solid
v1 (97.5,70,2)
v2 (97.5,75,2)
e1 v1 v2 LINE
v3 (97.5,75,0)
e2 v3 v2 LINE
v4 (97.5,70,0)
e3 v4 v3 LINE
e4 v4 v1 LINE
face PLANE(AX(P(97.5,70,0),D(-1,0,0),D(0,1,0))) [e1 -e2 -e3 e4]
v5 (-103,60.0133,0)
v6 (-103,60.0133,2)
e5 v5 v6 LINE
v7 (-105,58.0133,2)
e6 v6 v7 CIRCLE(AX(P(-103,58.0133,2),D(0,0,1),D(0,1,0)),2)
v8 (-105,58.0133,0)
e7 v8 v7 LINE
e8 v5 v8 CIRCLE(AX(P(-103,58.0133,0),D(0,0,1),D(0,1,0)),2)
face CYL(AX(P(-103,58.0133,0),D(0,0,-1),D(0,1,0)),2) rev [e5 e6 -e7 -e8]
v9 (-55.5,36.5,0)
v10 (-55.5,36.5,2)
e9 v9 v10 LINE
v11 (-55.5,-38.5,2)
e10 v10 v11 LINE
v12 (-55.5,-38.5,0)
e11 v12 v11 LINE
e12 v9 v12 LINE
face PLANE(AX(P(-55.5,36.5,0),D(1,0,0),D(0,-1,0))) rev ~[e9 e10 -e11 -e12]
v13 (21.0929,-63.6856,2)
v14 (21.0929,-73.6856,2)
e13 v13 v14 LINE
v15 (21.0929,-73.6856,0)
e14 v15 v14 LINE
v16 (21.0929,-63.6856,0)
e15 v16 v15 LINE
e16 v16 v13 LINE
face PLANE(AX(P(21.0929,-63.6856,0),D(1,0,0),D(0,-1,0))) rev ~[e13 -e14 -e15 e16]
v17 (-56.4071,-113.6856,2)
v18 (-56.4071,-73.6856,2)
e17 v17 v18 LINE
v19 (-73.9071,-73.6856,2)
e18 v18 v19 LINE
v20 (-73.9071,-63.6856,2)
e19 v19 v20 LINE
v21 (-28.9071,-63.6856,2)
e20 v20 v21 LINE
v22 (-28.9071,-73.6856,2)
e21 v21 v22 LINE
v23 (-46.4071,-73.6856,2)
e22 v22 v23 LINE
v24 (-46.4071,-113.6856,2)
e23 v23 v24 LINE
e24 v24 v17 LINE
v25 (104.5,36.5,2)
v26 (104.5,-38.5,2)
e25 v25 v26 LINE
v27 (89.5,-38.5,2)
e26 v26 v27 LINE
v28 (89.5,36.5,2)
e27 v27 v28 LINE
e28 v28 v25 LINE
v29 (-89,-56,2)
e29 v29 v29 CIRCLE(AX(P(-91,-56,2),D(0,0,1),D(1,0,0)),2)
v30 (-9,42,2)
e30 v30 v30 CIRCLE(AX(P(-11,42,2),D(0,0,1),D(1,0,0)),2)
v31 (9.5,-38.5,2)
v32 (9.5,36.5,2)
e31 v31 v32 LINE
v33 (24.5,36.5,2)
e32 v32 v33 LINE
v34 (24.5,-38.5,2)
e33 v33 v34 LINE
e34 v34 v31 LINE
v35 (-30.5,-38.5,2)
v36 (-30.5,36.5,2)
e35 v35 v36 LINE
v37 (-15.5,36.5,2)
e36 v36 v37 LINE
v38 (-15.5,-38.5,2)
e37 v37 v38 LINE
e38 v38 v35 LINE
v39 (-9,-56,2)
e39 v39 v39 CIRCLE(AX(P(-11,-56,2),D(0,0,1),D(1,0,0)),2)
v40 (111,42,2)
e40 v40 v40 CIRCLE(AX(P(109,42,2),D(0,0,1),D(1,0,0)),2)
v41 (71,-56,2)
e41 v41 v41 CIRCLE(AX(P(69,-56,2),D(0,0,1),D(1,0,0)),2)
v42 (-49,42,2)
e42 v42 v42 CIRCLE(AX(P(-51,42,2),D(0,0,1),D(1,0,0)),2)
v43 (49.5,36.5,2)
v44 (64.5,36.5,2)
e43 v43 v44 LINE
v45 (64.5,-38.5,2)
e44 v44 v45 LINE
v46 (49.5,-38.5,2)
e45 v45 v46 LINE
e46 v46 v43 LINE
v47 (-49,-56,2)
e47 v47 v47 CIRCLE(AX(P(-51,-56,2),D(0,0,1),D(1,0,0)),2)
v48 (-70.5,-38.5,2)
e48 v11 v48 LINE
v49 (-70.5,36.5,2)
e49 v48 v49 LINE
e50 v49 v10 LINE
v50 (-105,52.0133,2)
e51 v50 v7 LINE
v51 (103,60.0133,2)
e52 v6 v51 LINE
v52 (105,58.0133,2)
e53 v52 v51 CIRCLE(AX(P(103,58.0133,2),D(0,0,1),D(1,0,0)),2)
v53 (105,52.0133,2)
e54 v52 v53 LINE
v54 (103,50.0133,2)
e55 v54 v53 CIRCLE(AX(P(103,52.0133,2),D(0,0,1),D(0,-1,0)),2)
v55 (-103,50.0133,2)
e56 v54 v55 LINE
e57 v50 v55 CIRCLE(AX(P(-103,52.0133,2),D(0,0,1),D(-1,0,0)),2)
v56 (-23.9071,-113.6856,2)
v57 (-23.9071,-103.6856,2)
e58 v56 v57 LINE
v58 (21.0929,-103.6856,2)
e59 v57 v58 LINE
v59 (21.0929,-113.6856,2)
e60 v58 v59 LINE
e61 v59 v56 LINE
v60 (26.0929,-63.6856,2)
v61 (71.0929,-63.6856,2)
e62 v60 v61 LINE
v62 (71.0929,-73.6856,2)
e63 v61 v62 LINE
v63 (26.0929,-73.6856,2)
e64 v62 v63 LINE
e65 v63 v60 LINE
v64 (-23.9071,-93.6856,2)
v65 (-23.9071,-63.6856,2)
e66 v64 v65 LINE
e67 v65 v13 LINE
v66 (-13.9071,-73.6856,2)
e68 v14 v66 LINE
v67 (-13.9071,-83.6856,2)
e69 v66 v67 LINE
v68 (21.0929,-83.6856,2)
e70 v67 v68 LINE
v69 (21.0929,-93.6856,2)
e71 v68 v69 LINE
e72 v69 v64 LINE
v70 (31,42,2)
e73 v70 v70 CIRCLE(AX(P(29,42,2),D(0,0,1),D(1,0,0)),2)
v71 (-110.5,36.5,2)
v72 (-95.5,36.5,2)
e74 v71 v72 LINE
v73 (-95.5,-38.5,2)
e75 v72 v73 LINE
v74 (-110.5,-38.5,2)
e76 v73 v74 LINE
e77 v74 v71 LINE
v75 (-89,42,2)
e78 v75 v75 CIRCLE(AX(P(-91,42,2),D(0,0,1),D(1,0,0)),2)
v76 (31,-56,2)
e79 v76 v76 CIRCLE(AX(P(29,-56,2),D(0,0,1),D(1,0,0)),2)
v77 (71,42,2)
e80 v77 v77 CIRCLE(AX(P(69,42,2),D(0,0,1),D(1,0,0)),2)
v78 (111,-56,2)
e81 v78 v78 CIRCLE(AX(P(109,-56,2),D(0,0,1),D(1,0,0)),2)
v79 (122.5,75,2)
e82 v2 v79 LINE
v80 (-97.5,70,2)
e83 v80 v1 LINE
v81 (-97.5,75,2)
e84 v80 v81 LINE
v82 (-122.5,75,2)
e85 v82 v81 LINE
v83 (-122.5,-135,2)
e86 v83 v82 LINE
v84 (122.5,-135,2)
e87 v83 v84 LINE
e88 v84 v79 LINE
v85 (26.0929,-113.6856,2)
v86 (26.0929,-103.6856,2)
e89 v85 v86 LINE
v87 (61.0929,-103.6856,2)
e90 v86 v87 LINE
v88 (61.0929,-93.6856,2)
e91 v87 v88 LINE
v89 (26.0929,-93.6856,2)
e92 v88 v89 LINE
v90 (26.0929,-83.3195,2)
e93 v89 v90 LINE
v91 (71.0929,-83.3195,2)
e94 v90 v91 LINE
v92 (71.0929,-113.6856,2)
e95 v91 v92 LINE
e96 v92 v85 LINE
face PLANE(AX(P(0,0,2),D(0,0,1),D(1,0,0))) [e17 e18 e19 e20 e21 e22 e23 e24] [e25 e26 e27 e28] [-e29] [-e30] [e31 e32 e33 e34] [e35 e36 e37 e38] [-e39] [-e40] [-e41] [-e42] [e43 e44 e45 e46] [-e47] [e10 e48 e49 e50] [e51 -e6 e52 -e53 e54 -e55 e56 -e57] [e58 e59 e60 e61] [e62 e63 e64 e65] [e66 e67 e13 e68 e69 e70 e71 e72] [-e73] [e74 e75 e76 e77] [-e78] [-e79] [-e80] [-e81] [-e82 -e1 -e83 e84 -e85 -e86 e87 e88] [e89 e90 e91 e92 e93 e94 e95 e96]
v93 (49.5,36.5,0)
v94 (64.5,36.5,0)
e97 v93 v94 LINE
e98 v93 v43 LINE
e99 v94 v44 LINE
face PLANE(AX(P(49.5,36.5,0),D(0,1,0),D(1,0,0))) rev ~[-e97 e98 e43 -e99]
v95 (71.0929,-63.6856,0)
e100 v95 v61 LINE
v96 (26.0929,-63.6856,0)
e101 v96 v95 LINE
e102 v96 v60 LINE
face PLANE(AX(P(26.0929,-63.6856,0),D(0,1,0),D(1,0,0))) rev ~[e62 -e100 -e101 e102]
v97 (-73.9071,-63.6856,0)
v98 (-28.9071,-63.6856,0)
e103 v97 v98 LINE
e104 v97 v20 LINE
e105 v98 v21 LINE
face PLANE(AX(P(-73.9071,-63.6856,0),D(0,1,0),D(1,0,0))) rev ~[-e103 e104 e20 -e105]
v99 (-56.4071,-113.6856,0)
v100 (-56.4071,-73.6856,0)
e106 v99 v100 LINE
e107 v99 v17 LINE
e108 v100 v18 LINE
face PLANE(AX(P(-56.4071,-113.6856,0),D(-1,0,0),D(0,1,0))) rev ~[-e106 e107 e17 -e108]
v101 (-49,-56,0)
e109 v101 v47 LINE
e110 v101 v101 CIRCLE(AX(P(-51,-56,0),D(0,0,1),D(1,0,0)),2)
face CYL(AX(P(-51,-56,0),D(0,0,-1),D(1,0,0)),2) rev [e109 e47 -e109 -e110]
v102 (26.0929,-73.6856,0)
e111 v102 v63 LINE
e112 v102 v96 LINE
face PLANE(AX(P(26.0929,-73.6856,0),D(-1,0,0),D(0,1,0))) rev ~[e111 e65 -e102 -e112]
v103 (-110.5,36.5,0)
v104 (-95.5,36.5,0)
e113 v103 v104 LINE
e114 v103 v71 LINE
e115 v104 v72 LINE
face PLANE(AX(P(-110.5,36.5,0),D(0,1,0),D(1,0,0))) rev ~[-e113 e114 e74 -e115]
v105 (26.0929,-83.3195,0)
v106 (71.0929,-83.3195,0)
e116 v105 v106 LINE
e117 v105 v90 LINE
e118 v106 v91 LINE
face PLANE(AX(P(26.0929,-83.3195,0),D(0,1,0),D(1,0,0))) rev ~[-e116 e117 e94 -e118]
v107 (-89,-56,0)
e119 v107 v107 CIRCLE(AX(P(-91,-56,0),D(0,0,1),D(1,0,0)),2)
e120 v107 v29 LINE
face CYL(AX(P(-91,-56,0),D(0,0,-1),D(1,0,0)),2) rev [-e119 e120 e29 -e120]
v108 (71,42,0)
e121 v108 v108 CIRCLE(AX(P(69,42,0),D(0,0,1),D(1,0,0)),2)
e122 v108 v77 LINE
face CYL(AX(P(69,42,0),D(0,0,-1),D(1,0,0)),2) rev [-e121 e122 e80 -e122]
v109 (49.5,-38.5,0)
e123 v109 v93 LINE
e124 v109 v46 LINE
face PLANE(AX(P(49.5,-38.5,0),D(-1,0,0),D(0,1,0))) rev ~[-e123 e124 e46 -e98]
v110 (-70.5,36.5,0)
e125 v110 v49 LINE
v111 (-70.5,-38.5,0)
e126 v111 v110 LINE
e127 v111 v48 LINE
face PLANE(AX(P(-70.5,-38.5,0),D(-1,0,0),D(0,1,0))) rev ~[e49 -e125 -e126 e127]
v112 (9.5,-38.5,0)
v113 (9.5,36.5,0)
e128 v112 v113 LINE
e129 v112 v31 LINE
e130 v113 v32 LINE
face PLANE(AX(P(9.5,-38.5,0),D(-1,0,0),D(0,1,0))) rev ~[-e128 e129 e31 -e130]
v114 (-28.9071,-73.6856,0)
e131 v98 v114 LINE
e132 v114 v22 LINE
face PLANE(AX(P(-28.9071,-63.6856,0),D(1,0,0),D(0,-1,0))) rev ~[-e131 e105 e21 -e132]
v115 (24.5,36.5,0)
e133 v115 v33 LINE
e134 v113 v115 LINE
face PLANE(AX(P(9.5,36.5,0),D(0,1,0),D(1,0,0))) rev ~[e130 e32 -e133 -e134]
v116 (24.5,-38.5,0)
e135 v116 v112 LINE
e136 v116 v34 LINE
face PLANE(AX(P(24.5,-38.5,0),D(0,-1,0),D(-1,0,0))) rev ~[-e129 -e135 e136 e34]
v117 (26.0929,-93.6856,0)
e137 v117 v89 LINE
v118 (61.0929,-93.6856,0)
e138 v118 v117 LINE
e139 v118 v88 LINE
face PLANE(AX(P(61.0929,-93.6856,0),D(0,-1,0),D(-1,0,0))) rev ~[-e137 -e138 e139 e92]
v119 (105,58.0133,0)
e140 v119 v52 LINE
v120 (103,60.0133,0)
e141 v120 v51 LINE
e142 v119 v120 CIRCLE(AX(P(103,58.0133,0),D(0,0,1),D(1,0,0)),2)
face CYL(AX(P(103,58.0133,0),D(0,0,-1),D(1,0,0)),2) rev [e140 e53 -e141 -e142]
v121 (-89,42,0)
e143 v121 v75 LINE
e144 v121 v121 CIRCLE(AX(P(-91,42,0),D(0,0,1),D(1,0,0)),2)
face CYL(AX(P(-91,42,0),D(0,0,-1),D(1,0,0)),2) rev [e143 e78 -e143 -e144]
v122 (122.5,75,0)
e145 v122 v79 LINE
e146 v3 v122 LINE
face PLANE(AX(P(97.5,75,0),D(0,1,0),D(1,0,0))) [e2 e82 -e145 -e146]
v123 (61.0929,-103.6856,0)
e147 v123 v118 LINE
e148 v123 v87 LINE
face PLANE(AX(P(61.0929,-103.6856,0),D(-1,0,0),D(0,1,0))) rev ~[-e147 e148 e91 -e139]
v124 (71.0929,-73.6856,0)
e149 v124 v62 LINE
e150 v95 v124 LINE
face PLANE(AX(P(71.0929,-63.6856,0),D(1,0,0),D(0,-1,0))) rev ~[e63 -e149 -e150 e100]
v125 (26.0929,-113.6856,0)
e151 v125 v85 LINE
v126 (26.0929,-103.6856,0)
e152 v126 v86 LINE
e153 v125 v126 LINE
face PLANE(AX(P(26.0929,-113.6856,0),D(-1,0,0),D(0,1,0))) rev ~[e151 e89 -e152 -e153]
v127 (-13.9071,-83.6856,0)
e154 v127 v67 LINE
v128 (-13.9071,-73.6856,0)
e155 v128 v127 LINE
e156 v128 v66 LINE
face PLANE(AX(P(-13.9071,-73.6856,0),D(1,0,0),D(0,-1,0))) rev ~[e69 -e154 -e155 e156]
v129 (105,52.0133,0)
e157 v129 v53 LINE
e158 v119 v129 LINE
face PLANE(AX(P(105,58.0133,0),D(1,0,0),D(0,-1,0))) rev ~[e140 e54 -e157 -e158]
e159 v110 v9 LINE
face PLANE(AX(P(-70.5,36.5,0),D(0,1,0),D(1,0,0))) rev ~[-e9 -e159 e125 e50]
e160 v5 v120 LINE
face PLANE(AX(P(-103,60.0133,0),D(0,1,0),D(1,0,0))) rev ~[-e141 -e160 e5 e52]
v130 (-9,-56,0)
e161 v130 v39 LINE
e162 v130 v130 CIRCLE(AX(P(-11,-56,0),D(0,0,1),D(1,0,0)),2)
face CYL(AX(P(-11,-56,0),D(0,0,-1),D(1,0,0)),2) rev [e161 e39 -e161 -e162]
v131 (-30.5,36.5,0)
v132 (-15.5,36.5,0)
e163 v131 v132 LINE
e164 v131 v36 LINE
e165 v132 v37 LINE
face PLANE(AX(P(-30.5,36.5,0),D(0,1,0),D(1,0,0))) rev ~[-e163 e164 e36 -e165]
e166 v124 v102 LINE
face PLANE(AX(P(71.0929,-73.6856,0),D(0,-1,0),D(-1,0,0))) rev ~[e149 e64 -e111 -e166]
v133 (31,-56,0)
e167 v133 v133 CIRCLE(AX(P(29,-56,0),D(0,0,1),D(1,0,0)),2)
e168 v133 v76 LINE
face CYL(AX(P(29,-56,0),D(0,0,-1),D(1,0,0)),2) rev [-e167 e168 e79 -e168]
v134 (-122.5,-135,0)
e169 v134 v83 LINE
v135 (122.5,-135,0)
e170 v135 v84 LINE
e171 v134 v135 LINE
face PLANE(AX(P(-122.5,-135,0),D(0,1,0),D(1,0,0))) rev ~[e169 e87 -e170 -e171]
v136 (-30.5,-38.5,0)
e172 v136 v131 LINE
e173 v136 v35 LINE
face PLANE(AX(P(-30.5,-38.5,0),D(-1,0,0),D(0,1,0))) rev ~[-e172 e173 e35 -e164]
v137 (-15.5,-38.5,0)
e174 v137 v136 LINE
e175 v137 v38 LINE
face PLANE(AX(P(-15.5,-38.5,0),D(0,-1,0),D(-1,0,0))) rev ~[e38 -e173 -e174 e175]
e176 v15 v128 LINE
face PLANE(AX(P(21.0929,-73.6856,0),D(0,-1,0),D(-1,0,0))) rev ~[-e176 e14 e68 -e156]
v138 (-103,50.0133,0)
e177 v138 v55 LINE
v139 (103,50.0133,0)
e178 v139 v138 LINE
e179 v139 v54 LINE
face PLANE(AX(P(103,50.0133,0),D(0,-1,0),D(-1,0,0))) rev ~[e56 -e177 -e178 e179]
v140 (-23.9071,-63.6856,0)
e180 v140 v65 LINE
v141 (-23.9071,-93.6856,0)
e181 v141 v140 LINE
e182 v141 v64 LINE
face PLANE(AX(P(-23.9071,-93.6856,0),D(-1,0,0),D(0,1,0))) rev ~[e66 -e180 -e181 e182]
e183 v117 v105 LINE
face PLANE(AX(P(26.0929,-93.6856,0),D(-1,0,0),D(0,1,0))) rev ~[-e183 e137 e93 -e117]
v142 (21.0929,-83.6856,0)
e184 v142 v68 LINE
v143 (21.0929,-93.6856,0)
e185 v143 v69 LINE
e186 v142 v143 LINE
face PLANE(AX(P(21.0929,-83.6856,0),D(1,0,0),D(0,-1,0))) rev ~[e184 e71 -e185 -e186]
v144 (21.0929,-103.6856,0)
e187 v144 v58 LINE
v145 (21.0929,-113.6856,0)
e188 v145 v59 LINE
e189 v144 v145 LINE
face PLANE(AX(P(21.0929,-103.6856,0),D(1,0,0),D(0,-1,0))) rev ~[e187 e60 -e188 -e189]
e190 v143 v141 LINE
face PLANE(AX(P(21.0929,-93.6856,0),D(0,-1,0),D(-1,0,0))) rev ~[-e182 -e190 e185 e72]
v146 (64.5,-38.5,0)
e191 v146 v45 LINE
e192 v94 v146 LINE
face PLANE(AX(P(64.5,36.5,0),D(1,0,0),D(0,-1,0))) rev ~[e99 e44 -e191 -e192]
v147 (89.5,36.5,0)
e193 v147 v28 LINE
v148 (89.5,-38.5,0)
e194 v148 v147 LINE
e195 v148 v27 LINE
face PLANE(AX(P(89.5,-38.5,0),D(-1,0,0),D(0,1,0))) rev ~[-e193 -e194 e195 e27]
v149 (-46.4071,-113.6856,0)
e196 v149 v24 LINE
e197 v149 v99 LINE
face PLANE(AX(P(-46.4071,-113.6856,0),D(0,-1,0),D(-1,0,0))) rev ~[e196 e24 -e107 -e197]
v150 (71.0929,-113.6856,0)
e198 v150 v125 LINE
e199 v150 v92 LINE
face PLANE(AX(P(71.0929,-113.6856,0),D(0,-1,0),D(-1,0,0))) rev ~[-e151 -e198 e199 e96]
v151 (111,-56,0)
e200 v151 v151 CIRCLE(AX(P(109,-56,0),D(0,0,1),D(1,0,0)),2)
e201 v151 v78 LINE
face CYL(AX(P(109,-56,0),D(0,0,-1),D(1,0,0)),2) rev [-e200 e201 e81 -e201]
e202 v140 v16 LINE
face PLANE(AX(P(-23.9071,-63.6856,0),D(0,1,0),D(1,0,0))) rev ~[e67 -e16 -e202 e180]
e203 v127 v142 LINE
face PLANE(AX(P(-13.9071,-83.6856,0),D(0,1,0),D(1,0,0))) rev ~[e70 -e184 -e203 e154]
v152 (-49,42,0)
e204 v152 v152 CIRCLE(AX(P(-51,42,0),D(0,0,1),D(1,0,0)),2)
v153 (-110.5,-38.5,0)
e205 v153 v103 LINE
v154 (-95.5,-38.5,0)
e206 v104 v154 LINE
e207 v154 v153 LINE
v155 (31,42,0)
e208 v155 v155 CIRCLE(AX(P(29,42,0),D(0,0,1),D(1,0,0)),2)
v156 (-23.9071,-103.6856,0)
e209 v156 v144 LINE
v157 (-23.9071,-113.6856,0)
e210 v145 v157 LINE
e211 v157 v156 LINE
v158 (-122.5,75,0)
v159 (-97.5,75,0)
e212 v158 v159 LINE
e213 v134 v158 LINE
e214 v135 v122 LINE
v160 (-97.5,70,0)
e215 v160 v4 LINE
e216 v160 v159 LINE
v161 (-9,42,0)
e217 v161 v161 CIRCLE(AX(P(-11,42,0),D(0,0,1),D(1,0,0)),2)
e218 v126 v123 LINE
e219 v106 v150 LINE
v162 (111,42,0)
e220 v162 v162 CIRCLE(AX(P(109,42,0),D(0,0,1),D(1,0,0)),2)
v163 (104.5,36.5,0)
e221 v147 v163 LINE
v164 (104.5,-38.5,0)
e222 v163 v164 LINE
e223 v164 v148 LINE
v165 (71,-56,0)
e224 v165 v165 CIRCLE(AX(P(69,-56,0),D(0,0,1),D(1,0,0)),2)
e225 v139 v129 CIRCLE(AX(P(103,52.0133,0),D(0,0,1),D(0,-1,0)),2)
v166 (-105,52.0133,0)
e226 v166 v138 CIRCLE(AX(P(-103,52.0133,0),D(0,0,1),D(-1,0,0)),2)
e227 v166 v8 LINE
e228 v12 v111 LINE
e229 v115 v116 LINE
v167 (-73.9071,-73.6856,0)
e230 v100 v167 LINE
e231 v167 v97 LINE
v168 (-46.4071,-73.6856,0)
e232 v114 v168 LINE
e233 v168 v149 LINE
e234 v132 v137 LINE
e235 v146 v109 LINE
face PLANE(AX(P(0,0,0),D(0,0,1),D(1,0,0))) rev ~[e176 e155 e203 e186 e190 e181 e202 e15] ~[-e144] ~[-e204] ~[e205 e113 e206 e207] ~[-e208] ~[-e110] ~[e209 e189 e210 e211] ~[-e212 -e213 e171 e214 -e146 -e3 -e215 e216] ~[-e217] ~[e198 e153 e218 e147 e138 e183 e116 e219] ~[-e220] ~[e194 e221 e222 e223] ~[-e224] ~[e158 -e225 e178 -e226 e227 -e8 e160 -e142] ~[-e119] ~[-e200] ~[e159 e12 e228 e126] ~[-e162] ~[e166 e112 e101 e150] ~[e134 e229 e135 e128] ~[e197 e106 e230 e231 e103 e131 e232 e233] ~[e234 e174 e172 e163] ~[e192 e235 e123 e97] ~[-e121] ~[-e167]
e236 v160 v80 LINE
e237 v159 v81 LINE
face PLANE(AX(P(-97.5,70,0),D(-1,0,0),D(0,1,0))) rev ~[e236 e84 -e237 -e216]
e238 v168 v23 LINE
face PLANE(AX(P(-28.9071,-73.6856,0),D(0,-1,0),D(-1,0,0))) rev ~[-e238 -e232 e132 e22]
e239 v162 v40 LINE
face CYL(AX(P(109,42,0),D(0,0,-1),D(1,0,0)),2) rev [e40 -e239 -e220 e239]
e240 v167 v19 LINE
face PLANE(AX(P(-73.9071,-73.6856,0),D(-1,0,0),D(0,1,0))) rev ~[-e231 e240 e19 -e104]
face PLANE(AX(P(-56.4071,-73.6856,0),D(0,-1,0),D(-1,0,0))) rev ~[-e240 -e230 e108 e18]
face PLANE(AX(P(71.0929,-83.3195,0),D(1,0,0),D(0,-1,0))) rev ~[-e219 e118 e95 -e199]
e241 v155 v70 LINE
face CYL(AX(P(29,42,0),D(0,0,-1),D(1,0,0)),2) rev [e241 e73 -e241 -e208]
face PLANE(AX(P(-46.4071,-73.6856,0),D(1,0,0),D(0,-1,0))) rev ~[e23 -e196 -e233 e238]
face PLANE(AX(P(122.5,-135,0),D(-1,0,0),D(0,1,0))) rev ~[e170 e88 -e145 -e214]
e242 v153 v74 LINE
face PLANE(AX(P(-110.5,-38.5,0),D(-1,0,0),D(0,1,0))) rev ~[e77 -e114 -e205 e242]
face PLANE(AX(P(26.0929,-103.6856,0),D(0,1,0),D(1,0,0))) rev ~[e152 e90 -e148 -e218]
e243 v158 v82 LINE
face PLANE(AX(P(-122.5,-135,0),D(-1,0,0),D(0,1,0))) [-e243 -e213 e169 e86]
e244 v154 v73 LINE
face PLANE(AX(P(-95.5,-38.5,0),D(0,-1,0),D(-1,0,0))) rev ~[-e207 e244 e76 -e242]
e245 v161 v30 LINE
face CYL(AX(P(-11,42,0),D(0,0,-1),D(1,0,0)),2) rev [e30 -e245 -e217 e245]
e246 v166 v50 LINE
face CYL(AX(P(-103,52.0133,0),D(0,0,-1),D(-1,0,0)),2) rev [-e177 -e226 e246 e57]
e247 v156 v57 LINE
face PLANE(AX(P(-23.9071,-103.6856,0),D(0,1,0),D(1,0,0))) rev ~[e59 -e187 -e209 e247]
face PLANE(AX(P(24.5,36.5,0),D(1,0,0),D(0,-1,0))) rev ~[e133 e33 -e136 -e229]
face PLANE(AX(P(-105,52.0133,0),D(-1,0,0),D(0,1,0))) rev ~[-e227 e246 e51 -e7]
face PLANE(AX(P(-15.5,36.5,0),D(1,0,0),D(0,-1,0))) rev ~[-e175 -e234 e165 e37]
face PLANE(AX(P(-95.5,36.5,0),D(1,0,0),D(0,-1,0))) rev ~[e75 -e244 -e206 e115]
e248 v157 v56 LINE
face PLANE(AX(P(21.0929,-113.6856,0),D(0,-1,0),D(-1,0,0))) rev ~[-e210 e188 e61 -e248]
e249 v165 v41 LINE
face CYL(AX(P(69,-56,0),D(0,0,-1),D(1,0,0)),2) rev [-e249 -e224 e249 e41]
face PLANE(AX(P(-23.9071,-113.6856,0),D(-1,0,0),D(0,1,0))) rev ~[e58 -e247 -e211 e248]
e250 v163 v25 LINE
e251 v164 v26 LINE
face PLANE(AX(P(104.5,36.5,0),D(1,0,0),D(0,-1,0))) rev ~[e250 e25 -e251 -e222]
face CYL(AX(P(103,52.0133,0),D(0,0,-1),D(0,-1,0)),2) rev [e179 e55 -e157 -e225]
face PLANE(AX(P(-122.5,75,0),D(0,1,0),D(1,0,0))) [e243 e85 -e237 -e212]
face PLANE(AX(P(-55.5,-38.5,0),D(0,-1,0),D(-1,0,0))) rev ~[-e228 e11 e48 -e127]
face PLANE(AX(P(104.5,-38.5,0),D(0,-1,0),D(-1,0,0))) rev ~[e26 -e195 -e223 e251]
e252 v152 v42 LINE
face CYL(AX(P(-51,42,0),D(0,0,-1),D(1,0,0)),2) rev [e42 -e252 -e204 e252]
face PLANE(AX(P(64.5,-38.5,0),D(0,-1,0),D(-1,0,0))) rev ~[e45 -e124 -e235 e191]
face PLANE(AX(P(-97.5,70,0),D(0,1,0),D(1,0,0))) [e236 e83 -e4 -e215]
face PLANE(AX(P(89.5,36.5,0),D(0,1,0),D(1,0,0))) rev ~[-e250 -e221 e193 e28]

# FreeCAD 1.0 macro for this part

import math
import FreeCAD as App
import Part
import Sketcher

V = App.Vector
Q = App.Units.Quantity

doc = App.newDocument("Part")
body = doc.addObject("PartDesign::Body", "Body")

sketch1 = body.newObject("Sketcher::SketchObject", "Sketch")
sketch1.AttachmentSupport = (doc.getObject("XY_Plane"), [""])
sketch1.MapMode = "FlatFace"
sketch1.addGeometry(Part.LineSegment(V(-122.5, -135, 0), V(122.5, -135, 0)), False)
sketch1.addGeometry(Part.LineSegment(V(122.5, -135, 0), V(122.5, 75, 0)), False)
sketch1.addGeometry(Part.LineSegment(V(122.5, 75, 0), V(97.5, 75, 0)), False)
sketch1.addGeometry(Part.LineSegment(V(97.5, 75, 0), V(97.5, 70, 0)), False)
sketch1.addGeometry(Part.LineSegment(V(97.5, 70, 0), V(-97.5, 70, 0)), False)
sketch1.addGeometry(Part.LineSegment(V(-97.5, 70, 0), V(-97.5, 75, 0)), False)
sketch1.addGeometry(Part.LineSegment(V(-97.5, 75, 0), V(-122.5, 75, 0)), False)
sketch1.addGeometry(Part.LineSegment(V(-122.5, 75, 0), V(-122.5, -135, 0)), False)
sketch1.addGeometry(Part.LineSegment(V(-73.9, -63.7, 0), V(-28.9, -63.7, 0)), False)
sketch1.addGeometry(Part.LineSegment(V(-28.9, -63.7, 0), V(-28.9, -73.7, 0)), False)
sketch1.addGeometry(Part.LineSegment(V(-28.9, -73.7, 0), V(-46.4, -73.7, 0)), False)
sketch1.addGeometry(Part.LineSegment(V(-46.4, -73.7, 0), V(-46.4, -113.7, 0)), False)
sketch1.addGeometry(Part.LineSegment(V(-46.4, -113.7, 0), V(-56.4, -113.7, 0)), False)
sketch1.addGeometry(Part.LineSegment(V(-56.4, -113.7, 0), V(-56.4, -73.7, 0)), False)
sketch1.addGeometry(Part.LineSegment(V(-56.4, -73.7, 0), V(-73.9, -73.7, 0)), False)
sketch1.addGeometry(Part.LineSegment(V(-73.9, -73.7, 0), V(-73.9, -63.7, 0)), False)
sketch1.addGeometry(Part.LineSegment(V(21.1, -103.7, 0), V(21.1, -113.7, 0)), False)
sketch1.addGeometry(Part.LineSegment(V(21.1, -113.7, 0), V(-23.9, -113.7, 0)), False)
sketch1.addGeometry(Part.LineSegment(V(-23.9, -113.7, 0), V(-23.9, -103.7, 0)), False)
sketch1.addGeometry(Part.LineSegment(V(-23.9, -103.7, 0), V(21.1, -103.7, 0)), False)
sketch1.addGeometry(Part.Circle(V(-91, -56, 0), V(0, 0, 1), 2), False)
sketch1.addGeometry(Part.LineSegment(V(-13.9, -73.7, 0), V(-13.9, -83.7, 0)), False)
sketch1.addGeometry(Part.LineSegment(V(-13.9, -83.7, 0), V(21.1, -83.7, 0)), False)
sketch1.addGeometry(Part.LineSegment(V(21.1, -83.7, 0), V(21.1, -93.7, 0)), False)
sketch1.addGeometry(Part.LineSegment(V(21.1, -93.7, 0), V(-23.9, -93.7, 0)), False)
sketch1.addGeometry(Part.LineSegment(V(-23.9, -93.7, 0), V(-23.9, -63.7, 0)), False)
sketch1.addGeometry(Part.LineSegment(V(-23.9, -63.7, 0), V(21.1, -63.7, 0)), False)
sketch1.addGeometry(Part.LineSegment(V(21.1, -63.7, 0), V(21.1, -73.7, 0)), False)
sketch1.addGeometry(Part.LineSegment(V(21.1, -73.7, 0), V(-13.9, -73.7, 0)), False)
sketch1.addGeometry(Part.Circle(V(-51, -56, 0), V(0, 0, 1), 2), False)
sketch1.addGeometry(Part.Circle(V(-11, -56, 0), V(0, 0, 1), 2), False)
sketch1.addGeometry(Part.LineSegment(V(26.1, -113.7, 0), V(26.1, -103.7, 0)), False)
sketch1.addGeometry(Part.LineSegment(V(26.1, -103.7, 0), V(61.1, -103.7, 0)), False)
sketch1.addGeometry(Part.LineSegment(V(61.1, -103.7, 0), V(61.1, -93.7, 0)), False)
sketch1.addGeometry(Part.LineSegment(V(61.1, -93.7, 0), V(26.1, -93.7, 0)), False)
sketch1.addGeometry(Part.LineSegment(V(26.1, -93.7, 0), V(26.1, -83.3, 0)), False)
sketch1.addGeometry(Part.LineSegment(V(26.1, -83.3, 0), V(71.1, -83.3, 0)), False)
sketch1.addGeometry(Part.LineSegment(V(71.1, -83.3, 0), V(71.1, -113.7, 0)), False)
sketch1.addGeometry(Part.LineSegment(V(71.1, -113.7, 0), V(26.1, -113.7, 0)), False)
sketch1.addGeometry(Part.LineSegment(V(26.1, -73.7, 0), V(26.1, -63.7, 0)), False)
sketch1.addGeometry(Part.LineSegment(V(26.1, -63.7, 0), V(71.1, -63.7, 0)), False)
sketch1.addGeometry(Part.LineSegment(V(71.1, -63.7, 0), V(71.1, -73.7, 0)), False)
sketch1.addGeometry(Part.LineSegment(V(71.1, -73.7, 0), V(26.1, -73.7, 0)), False)
sketch1.addGeometry(Part.Circle(V(29, -56, 0), V(0, 0, 1), 2), False)
sketch1.addGeometry(Part.Circle(V(69, -56, 0), V(0, 0, 1), 2), False)
sketch1.addGeometry(Part.Circle(V(109, -56, 0), V(0, 0, 1), 2), False)
sketch1.addGeometry(Part.LineSegment(V(-110.5, -38.5, 0), V(-110.5, 36.5, 0)), False)
sketch1.addGeometry(Part.LineSegment(V(-110.5, 36.5, 0), V(-95.5, 36.5, 0)), False)
sketch1.addGeometry(Part.LineSegment(V(-95.5, 36.5, 0), V(-95.5, -38.5, 0)), False)
sketch1.addGeometry(Part.LineSegment(V(-95.5, -38.5, 0), V(-110.5, -38.5, 0)), False)
sketch1.addGeometry(Part.LineSegment(V(-70.5, 36.5, 0), V(-55.5, 36.5, 0)), False)
sketch1.addGeometry(Part.LineSegment(V(-55.5, 36.5, 0), V(-55.5, -38.5, 0)), False)
sketch1.addGeometry(Part.LineSegment(V(-55.5, -38.5, 0), V(-70.5, -38.5, 0)), False)
sketch1.addGeometry(Part.LineSegment(V(-70.5, -38.5, 0), V(-70.5, 36.5, 0)), False)
sketch1.addGeometry(Part.LineSegment(V(-15.5, 36.5, 0), V(-15.5, -38.5, 0)), False)
sketch1.addGeometry(Part.LineSegment(V(-15.5, -38.5, 0), V(-30.5, -38.5, 0)), False)
sketch1.addGeometry(Part.LineSegment(V(-30.5, -38.5, 0), V(-30.5, 36.5, 0)), False)
sketch1.addGeometry(Part.LineSegment(V(-30.5, 36.5, 0), V(-15.5, 36.5, 0)), False)
sketch1.addGeometry(Part.Circle(V(-91, 42, 0), V(0, 0, 1), 2), False)
sketch1.addGeometry(Part.Circle(V(-51, 42, 0), V(0, 0, 1), 2), False)
sketch1.addGeometry(Part.Circle(V(-11, 42, 0), V(0, 0, 1), 2), False)
sketch1.addGeometry(Part.LineSegment(V(24.5, 36.5, 0), V(24.5, -38.5, 0)), False)
sketch1.addGeometry(Part.LineSegment(V(24.5, -38.5, 0), V(9.5, -38.5, 0)), False)
sketch1.addGeometry(Part.LineSegment(V(9.5, -38.5, 0), V(9.5, 36.5, 0)), False)
sketch1.addGeometry(Part.LineSegment(V(9.5, 36.5, 0), V(24.5, 36.5, 0)), False)
sketch1.addGeometry(Part.LineSegment(V(64.5, -38.5, 0), V(49.5, -38.5, 0)), False)
sketch1.addGeometry(Part.LineSegment(V(49.5, -38.5, 0), V(49.5, 36.5, 0)), False)
sketch1.addGeometry(Part.LineSegment(V(49.5, 36.5, 0), V(64.5, 36.5, 0)), False)
sketch1.addGeometry(Part.LineSegment(V(64.5, 36.5, 0), V(64.5, -38.5, 0)), False)
sketch1.addGeometry(Part.LineSegment(V(89.5, 36.5, 0), V(104.5, 36.5, 0)), False)
sketch1.addGeometry(Part.LineSegment(V(104.5, 36.5, 0), V(104.5, -38.5, 0)), False)
sketch1.addGeometry(Part.LineSegment(V(104.5, -38.5, 0), V(89.5, -38.5, 0)), False)
sketch1.addGeometry(Part.LineSegment(V(89.5, -38.5, 0), V(89.5, 36.5, 0)), False)
sketch1.addGeometry(Part.Circle(V(29, 42, 0), V(0, 0, 1), 2), False)
sketch1.addGeometry(Part.ArcOfCircle(Part.Circle(V(-103, 58, 0), V(0, 0, 1), 2), math.radians(90), math.radians(180)), False)
sketch1.addGeometry(Part.LineSegment(V(-103, 60, 0), V(103, 60, 0)), False)
sketch1.addGeometry(Part.ArcOfCircle(Part.Circle(V(103, 58, 0), V(0, 0, 1), 2), math.radians(0), math.radians(90)), False)
sketch1.addGeometry(Part.LineSegment(V(105, 58, 0), V(105, 52, 0)), False)
sketch1.addGeometry(Part.ArcOfCircle(Part.Circle(V(103, 52, 0), V(0, 0, 1), 2), math.radians(-90), math.radians(0)), False)
sketch1.addGeometry(Part.LineSegment(V(103, 50, 0), V(-103, 50, 0)), False)
sketch1.addGeometry(Part.ArcOfCircle(Part.Circle(V(-103, 52, 0), V(0, 0, 1), 2), math.radians(180), math.radians(270)), False)
sketch1.addGeometry(Part.LineSegment(V(-105, 52, 0), V(-105, 58, 0)), False)
sketch1.addGeometry(Part.Circle(V(69, 42, 0), V(0, 0, 1), 2), False)
sketch1.addGeometry(Part.Circle(V(109, 42, 0), V(0, 0, 1), 2), False)
sketch1.addConstraint(Sketcher.Constraint("Coincident", 0, 2, 1, 1))
sketch1.addConstraint(Sketcher.Constraint("Coincident", 1, 2, 2, 1))
sketch1.addConstraint(Sketcher.Constraint("Coincident", 2, 2, 3, 1))
sketch1.addConstraint(Sketcher.Constraint("Coincident", 3, 2, 4, 1))
sketch1.addConstraint(Sketcher.Constraint("Coincident", 4, 2, 5, 1))
sketch1.addConstraint(Sketcher.Constraint("Coincident", 5, 2, 6, 1))
sketch1.addConstraint(Sketcher.Constraint("Coincident", 6, 2, 7, 1))
sketch1.addConstraint(Sketcher.Constraint("Coincident", 7, 2, 0, 1))
sketch1.addConstraint(Sketcher.Constraint("Coincident", 8, 2, 9, 1))
sketch1.addConstraint(Sketcher.Constraint("Coincident", 9, 2, 10, 1))
sketch1.addConstraint(Sketcher.Constraint("Coincident", 10, 2, 11, 1))
sketch1.addConstraint(Sketcher.Constraint("Coincident", 11, 2, 12, 1))
sketch1.addConstraint(Sketcher.Constraint("Coincident", 12, 2, 13, 1))
sketch1.addConstraint(Sketcher.Constraint("Coincident", 13, 2, 14, 1))
sketch1.addConstraint(Sketcher.Constraint("Coincident", 14, 2, 15, 1))
sketch1.addConstraint(Sketcher.Constraint("Coincident", 15, 2, 8, 1))
sketch1.addConstraint(Sketcher.Constraint("Coincident", 16, 2, 17, 1))
sketch1.addConstraint(Sketcher.Constraint("Coincident", 17, 2, 18, 1))
sketch1.addConstraint(Sketcher.Constraint("Coincident", 18, 2, 19, 1))
sketch1.addConstraint(Sketcher.Constraint("Coincident", 19, 2, 16, 1))
sketch1.addConstraint(Sketcher.Constraint("Coincident", 21, 2, 22, 1))
sketch1.addConstraint(Sketcher.Constraint("Coincident", 22, 2, 23, 1))
sketch1.addConstraint(Sketcher.Constraint("Coincident", 23, 2, 24, 1))
sketch1.addConstraint(Sketcher.Constraint("Coincident", 24, 2, 25, 1))
sketch1.addConstraint(Sketcher.Constraint("Coincident", 25, 2, 26, 1))
sketch1.addConstraint(Sketcher.Constraint("Coincident", 26, 2, 27, 1))
sketch1.addConstraint(Sketcher.Constraint("Coincident", 27, 2, 28, 1))
sketch1.addConstraint(Sketcher.Constraint("Coincident", 28, 2, 21, 1))
sketch1.addConstraint(Sketcher.Constraint("Coincident", 31, 2, 32, 1))
sketch1.addConstraint(Sketcher.Constraint("Coincident", 32, 2, 33, 1))
sketch1.addConstraint(Sketcher.Constraint("Coincident", 33, 2, 34, 1))
sketch1.addConstraint(Sketcher.Constraint("Coincident", 34, 2, 35, 1))
sketch1.addConstraint(Sketcher.Constraint("Coincident", 35, 2, 36, 1))
sketch1.addConstraint(Sketcher.Constraint("Coincident", 36, 2, 37, 1))
sketch1.addConstraint(Sketcher.Constraint("Coincident", 37, 2, 38, 1))
sketch1.addConstraint(Sketcher.Constraint("Coincident", 38, 2, 31, 1))
sketch1.addConstraint(Sketcher.Constraint("Coincident", 39, 2, 40, 1))
sketch1.addConstraint(Sketcher.Constraint("Coincident", 40, 2, 41, 1))
sketch1.addConstraint(Sketcher.Constraint("Coincident", 41, 2, 42, 1))
sketch1.addConstraint(Sketcher.Constraint("Coincident", 42, 2, 39, 1))
sketch1.addConstraint(Sketcher.Constraint("Coincident", 46, 2, 47, 1))
sketch1.addConstraint(Sketcher.Constraint("Coincident", 47, 2, 48, 1))
sketch1.addConstraint(Sketcher.Constraint("Coincident", 48, 2, 49, 1))
sketch1.addConstraint(Sketcher.Constraint("Coincident", 49, 2, 46, 1))
sketch1.addConstraint(Sketcher.Constraint("Coincident", 50, 2, 51, 1))
sketch1.addConstraint(Sketcher.Constraint("Coincident", 51, 2, 52, 1))
sketch1.addConstraint(Sketcher.Constraint("Coincident", 52, 2, 53, 1))
sketch1.addConstraint(Sketcher.Constraint("Coincident", 53, 2, 50, 1))
sketch1.addConstraint(Sketcher.Constraint("Coincident", 54, 2, 55, 1))
sketch1.addConstraint(Sketcher.Constraint("Coincident", 55, 2, 56, 1))
sketch1.addConstraint(Sketcher.Constraint("Coincident", 56, 2, 57, 1))
sketch1.addConstraint(Sketcher.Constraint("Coincident", 57, 2, 54, 1))
sketch1.addConstraint(Sketcher.Constraint("Coincident", 61, 2, 62, 1))
sketch1.addConstraint(Sketcher.Constraint("Coincident", 62, 2, 63, 1))
sketch1.addConstraint(Sketcher.Constraint("Coincident", 63, 2, 64, 1))
sketch1.addConstraint(Sketcher.Constraint("Coincident", 64, 2, 61, 1))
sketch1.addConstraint(Sketcher.Constraint("Coincident", 65, 2, 66, 1))
sketch1.addConstraint(Sketcher.Constraint("Coincident", 66, 2, 67, 1))
sketch1.addConstraint(Sketcher.Constraint("Coincident", 67, 2, 68, 1))
sketch1.addConstraint(Sketcher.Constraint("Coincident", 68, 2, 65, 1))
sketch1.addConstraint(Sketcher.Constraint("Coincident", 69, 2, 70, 1))
sketch1.addConstraint(Sketcher.Constraint("Coincident", 70, 2, 71, 1))
sketch1.addConstraint(Sketcher.Constraint("Coincident", 71, 2, 72, 1))
sketch1.addConstraint(Sketcher.Constraint("Coincident", 72, 2, 69, 1))
sketch1.addConstraint(Sketcher.Constraint("Tangent", 74, 1, 75, 1))
sketch1.addConstraint(Sketcher.Constraint("Tangent", 75, 2, 76, 2))
sketch1.addConstraint(Sketcher.Constraint("Tangent", 76, 1, 77, 1))
sketch1.addConstraint(Sketcher.Constraint("Tangent", 77, 2, 78, 2))
sketch1.addConstraint(Sketcher.Constraint("Tangent", 78, 1, 79, 1))
sketch1.addConstraint(Sketcher.Constraint("Tangent", 79, 2, 80, 2))
sketch1.addConstraint(Sketcher.Constraint("Tangent", 80, 1, 81, 1))
sketch1.addConstraint(Sketcher.Constraint("Tangent", 81, 2, 74, 2))
sketch1.addConstraint(Sketcher.Constraint("Horizontal", 0))
sketch1.addConstraint(Sketcher.Constraint("Vertical", 1))
sketch1.addConstraint(Sketcher.Constraint("Horizontal", 2))
sketch1.addConstraint(Sketcher.Constraint("Vertical", 3))
sketch1.addConstraint(Sketcher.Constraint("Horizontal", 4))
sketch1.addConstraint(Sketcher.Constraint("Vertical", 5))
sketch1.addConstraint(Sketcher.Constraint("Horizontal", 6))
sketch1.addConstraint(Sketcher.Constraint("Vertical", 7))
sketch1.addConstraint(Sketcher.Constraint("Horizontal", 8))
sketch1.addConstraint(Sketcher.Constraint("Vertical", 9))
sketch1.addConstraint(Sketcher.Constraint("Horizontal", 10))
sketch1.addConstraint(Sketcher.Constraint("Vertical", 11))
sketch1.addConstraint(Sketcher.Constraint("Horizontal", 12))
sketch1.addConstraint(Sketcher.Constraint("Vertical", 13))
sketch1.addConstraint(Sketcher.Constraint("Horizontal", 14))
sketch1.addConstraint(Sketcher.Constraint("Vertical", 15))
sketch1.addConstraint(Sketcher.Constraint("Vertical", 16))
sketch1.addConstraint(Sketcher.Constraint("Horizontal", 17))
sketch1.addConstraint(Sketcher.Constraint("Vertical", 18))
sketch1.addConstraint(Sketcher.Constraint("Horizontal", 19))
sketch1.addConstraint(Sketcher.Constraint("Vertical", 21))
sketch1.addConstraint(Sketcher.Constraint("Horizontal", 22))
sketch1.addConstraint(Sketcher.Constraint("Vertical", 23))
sketch1.addConstraint(Sketcher.Constraint("Horizontal", 24))
sketch1.addConstraint(Sketcher.Constraint("Vertical", 25))
sketch1.addConstraint(Sketcher.Constraint("Horizontal", 26))
sketch1.addConstraint(Sketcher.Constraint("Vertical", 27))
sketch1.addConstraint(Sketcher.Constraint("Horizontal", 28))
sketch1.addConstraint(Sketcher.Constraint("Vertical", 31))
sketch1.addConstraint(Sketcher.Constraint("Horizontal", 32))
sketch1.addConstraint(Sketcher.Constraint("Vertical", 33))
sketch1.addConstraint(Sketcher.Constraint("Horizontal", 34))
sketch1.addConstraint(Sketcher.Constraint("Vertical", 35))
sketch1.addConstraint(Sketcher.Constraint("Horizontal", 36))
sketch1.addConstraint(Sketcher.Constraint("Vertical", 37))
sketch1.addConstraint(Sketcher.Constraint("Horizontal", 38))
sketch1.addConstraint(Sketcher.Constraint("Vertical", 39))
sketch1.addConstraint(Sketcher.Constraint("Horizontal", 40))
sketch1.addConstraint(Sketcher.Constraint("Vertical", 41))
sketch1.addConstraint(Sketcher.Constraint("Horizontal", 42))
sketch1.addConstraint(Sketcher.Constraint("Vertical", 46))
sketch1.addConstraint(Sketcher.Constraint("Horizontal", 47))
sketch1.addConstraint(Sketcher.Constraint("Vertical", 48))
sketch1.addConstraint(Sketcher.Constraint("Horizontal", 49))
sketch1.addConstraint(Sketcher.Constraint("Horizontal", 50))
sketch1.addConstraint(Sketcher.Constraint("Vertical", 51))
sketch1.addConstraint(Sketcher.Constraint("Horizontal", 52))
sketch1.addConstraint(Sketcher.Constraint("Vertical", 53))
sketch1.addConstraint(Sketcher.Constraint("Vertical", 54))
sketch1.addConstraint(Sketcher.Constraint("Horizontal", 55))
sketch1.addConstraint(Sketcher.Constraint("Vertical", 56))
sketch1.addConstraint(Sketcher.Constraint("Horizontal", 57))
sketch1.addConstraint(Sketcher.Constraint("Vertical", 61))
sketch1.addConstraint(Sketcher.Constraint("Horizontal", 62))
sketch1.addConstraint(Sketcher.Constraint("Vertical", 63))
sketch1.addConstraint(Sketcher.Constraint("Horizontal", 64))
sketch1.addConstraint(Sketcher.Constraint("Horizontal", 65))
sketch1.addConstraint(Sketcher.Constraint("Vertical", 66))
sketch1.addConstraint(Sketcher.Constraint("Horizontal", 67))
sketch1.addConstraint(Sketcher.Constraint("Vertical", 68))
sketch1.addConstraint(Sketcher.Constraint("Horizontal", 69))
sketch1.addConstraint(Sketcher.Constraint("Vertical", 70))
sketch1.addConstraint(Sketcher.Constraint("Horizontal", 71))
sketch1.addConstraint(Sketcher.Constraint("Vertical", 72))
sketch1.addConstraint(Sketcher.Constraint("Horizontal", 75))
sketch1.addConstraint(Sketcher.Constraint("Vertical", 77))
sketch1.addConstraint(Sketcher.Constraint("Horizontal", 79))
sketch1.addConstraint(Sketcher.Constraint("Vertical", 81))
sketch1.addConstraint(Sketcher.Constraint("Equal", 20, 29))
sketch1.addConstraint(Sketcher.Constraint("Equal", 29, 30))
sketch1.addConstraint(Sketcher.Constraint("Equal", 30, 43))
sketch1.addConstraint(Sketcher.Constraint("Equal", 43, 44))
sketch1.addConstraint(Sketcher.Constraint("Equal", 44, 45))
sketch1.addConstraint(Sketcher.Constraint("Equal", 45, 58))
sketch1.addConstraint(Sketcher.Constraint("Equal", 58, 59))
sketch1.addConstraint(Sketcher.Constraint("Equal", 59, 60))
sketch1.addConstraint(Sketcher.Constraint("Equal", 60, 73))
sketch1.addConstraint(Sketcher.Constraint("Equal", 73, 74))
sketch1.addConstraint(Sketcher.Constraint("Equal", 74, 76))
sketch1.addConstraint(Sketcher.Constraint("Equal", 76, 78))
sketch1.addConstraint(Sketcher.Constraint("Equal", 78, 80))
sketch1.addConstraint(Sketcher.Constraint("Equal", 80, 82))
sketch1.addConstraint(Sketcher.Constraint("Equal", 82, 83))
sketch1.addConstraint(Sketcher.Constraint("Symmetric", 2, 2, 5, 2, -2))
sketch1.addConstraint(Sketcher.Constraint("Horizontal", 20, 3, 29, 3))
sketch1.addConstraint(Sketcher.Constraint("Horizontal", 29, 3, 30, 3))
sketch1.addConstraint(Sketcher.Constraint("Horizontal", 30, 3, 43, 3))
sketch1.addConstraint(Sketcher.Constraint("Horizontal", 43, 3, 44, 3))
sketch1.addConstraint(Sketcher.Constraint("Horizontal", 44, 3, 45, 3))
sketch1.addConstraint(Sketcher.Constraint("Horizontal", 58, 3, 59, 3))
sketch1.addConstraint(Sketcher.Constraint("Horizontal", 59, 3, 60, 3))
sketch1.addConstraint(Sketcher.Constraint("Horizontal", 60, 3, 73, 3))
sketch1.addConstraint(Sketcher.Constraint("Horizontal", 73, 3, 82, 3))
sketch1.addConstraint(Sketcher.Constraint("Horizontal", 82, 3, 83, 3))
sketch1.addConstraint(Sketcher.Constraint("Horizontal", 10, 2, 13, 2))
sketch1.addConstraint(Sketcher.Constraint("Horizontal", 12, 2, 16, 2))
sketch1.addConstraint(Sketcher.Constraint("Horizontal", 15, 2, 25, 2))
sketch1.addConstraint(Sketcher.Constraint("Horizontal", 14, 2, 27, 2))
sketch1.addConstraint(Sketcher.Constraint("Horizontal", 19, 2, 31, 2))
sketch1.addConstraint(Sketcher.Constraint("Horizontal", 24, 2, 33, 2))
sketch1.addConstraint(Sketcher.Constraint("Horizontal", 17, 2, 37, 2))
sketch1.addConstraint(Sketcher.Constraint("Horizontal", 26, 2, 39, 2))
sketch1.addConstraint(Sketcher.Constraint("Horizontal", 28, 2, 41, 2))
sketch1.addConstraint(Sketcher.Constraint("Horizontal", 47, 2, 50, 2))
sketch1.addConstraint(Sketcher.Constraint("Horizontal", 49, 2, 51, 2))
sketch1.addConstraint(Sketcher.Constraint("Horizontal", 52, 2, 54, 2))
sketch1.addConstraint(Sketcher.Constraint("Horizontal", 53, 2, 56, 2))
sketch1.addConstraint(Sketcher.Constraint("Horizontal", 55, 2, 61, 2))
sketch1.addConstraint(Sketcher.Constraint("Horizontal", 57, 2, 63, 2))
sketch1.addConstraint(Sketcher.Constraint("Horizontal", 62, 2, 65, 2))
sketch1.addConstraint(Sketcher.Constraint("Horizontal", 64, 2, 66, 2))
sketch1.addConstraint(Sketcher.Constraint("Horizontal", 67, 2, 69, 2))
sketch1.addConstraint(Sketcher.Constraint("Horizontal", 68, 2, 70, 2))
sketch1.addConstraint(Sketcher.Constraint("Vertical", 20, 3, 58, 3))
sketch1.addConstraint(Sketcher.Constraint("Vertical", 29, 3, 59, 3))
sketch1.addConstraint(Sketcher.Constraint("Vertical", 30, 3, 60, 3))
sketch1.addConstraint(Sketcher.Constraint("Vertical", 43, 3, 73, 3))
sketch1.addConstraint(Sketcher.Constraint("Vertical", 44, 3, 82, 3))
sketch1.addConstraint(Sketcher.Constraint("Vertical", 45, 3, 83, 3))
sketch1.addConstraint(Sketcher.Constraint("Vertical", 19, 2, 22, 2))
sketch1.addConstraint(Sketcher.Constraint("Vertical", 18, 2, 24, 2))
sketch1.addConstraint(Sketcher.Constraint("Vertical", 23, 2, 26, 2))
sketch1.addConstraint(Sketcher.Constraint("Vertical", 31, 2, 34, 2))
sketch1.addConstraint(Sketcher.Constraint("Vertical", 38, 2, 39, 2))
sketch1.addConstraint(Sketcher.Constraint("Vertical", 37, 2, 40, 2))
sketch1.addConstraint(Sketcher.Constraint("Equal", 2, 6))
sketch1.addConstraint(Sketcher.Constraint("Equal", 10, 14))
sketch1.addConstraint(Sketcher.Constraint("Equal", 8, 17))
sketch1.addConstraint(Sketcher.Constraint("Equal", 28, 32))
sketch1.addConstraint(Sketcher.Constraint("Equal", 26, 36))
sketch1.addConstraint(Sketcher.Constraint("Equal", 49, 50))
sketch1.addConstraint(Sketcher.Constraint("Equal", 52, 55))
sketch1.addConstraint(Sketcher.Constraint("Equal", 57, 62))
sketch1.addConstraint(Sketcher.Constraint("Equal", 64, 65))
sketch1.addConstraint(Sketcher.Constraint("Equal", 67, 69))
sketch1.addConstraint(Sketcher.Constraint("Equal", 12, 9))
sketch1.addConstraint(Sketcher.Constraint("Equal", 15, 16))
sketch1.addConstraint(Sketcher.Constraint("Equal", 18, 21))
sketch1.addConstraint(Sketcher.Constraint("Equal", 21, 23))
sketch1.addConstraint(Sketcher.Constraint("Equal", 31, 33))
sketch1.addConstraint(Sketcher.Constraint("Diameter", 20, Q("4 mm")))
sketch1.addConstraint(Sketcher.Constraint("DistanceX", 0, 1, 0, 2, Q("245 mm")))
sketch1.addConstraint(Sketcher.Constraint("DistanceX", 2, 2, 2, 1, Q("25 mm")))
sketch1.addConstraint(Sketcher.Constraint("DistanceX", 8, 1, 8, 2, Q("45 mm")))
sketch1.addConstraint(Sketcher.Constraint("DistanceX", 12, 2, 12, 1, Q("10 mm")))
sketch1.addConstraint(Sketcher.Constraint("DistanceX", 22, 1, 22, 2, Q("35 mm")))
sketch1.addConstraint(Sketcher.Constraint("DistanceX", 47, 1, 47, 2, Q("15 mm")))
sketch1.addConstraint(Sketcher.Constraint("DistanceX", 75, 1, 75, 2, Q("206 mm")))
sketch1.addConstraint(Sketcher.Constraint("DistanceY", 1, 1, 1, 2, Q("210 mm")))
sketch1.addConstraint(Sketcher.Constraint("DistanceY", 3, 2, 3, 1, Q("5 mm")))
sketch1.addConstraint(Sketcher.Constraint("DistanceY", 46, 1, 46, 2, Q("75 mm")))
sketch1.addConstraint(Sketcher.Constraint("DistanceY", 77, 2, 77, 1, Q("6 mm")))
sketch1.addConstraint(Sketcher.Constraint("DistanceX", 20, 3, -1, 1, Q("91 mm")))
sketch1.addConstraint(Sketcher.Constraint("DistanceY", 20, 3, -1, 1, Q("56 mm")))
sketch1.addConstraint(Sketcher.Constraint("DistanceX", 29, 3, -1, 1, Q("51 mm")))
sketch1.addConstraint(Sketcher.Constraint("DistanceX", 30, 3, -1, 1, Q("11 mm")))
sketch1.addConstraint(Sketcher.Constraint("DistanceX", -1, 1, 43, 3, Q("29 mm")))
sketch1.addConstraint(Sketcher.Constraint("DistanceX", -1, 1, 44, 3, Q("69 mm")))
sketch1.addConstraint(Sketcher.Constraint("DistanceX", -1, 1, 45, 3, Q("109 mm")))
sketch1.addConstraint(Sketcher.Constraint("DistanceY", -1, 1, 58, 3, Q("42 mm")))
sketch1.addConstraint(Sketcher.Constraint("DistanceX", 74, 3, -1, 1, Q("103 mm")))
sketch1.addConstraint(Sketcher.Constraint("DistanceY", 0, 2, -1, 1, Q("135 mm")))
sketch1.addConstraint(Sketcher.Constraint("DistanceX", 46, 2, -1, 1, Q("110.5 mm")))
sketch1.addConstraint(Sketcher.Constraint("DistanceY", -1, 1, 46, 2, Q("36.5 mm")))
sketch1.addConstraint(Sketcher.Constraint("DistanceX", 50, 2, -1, 1, Q("55.5 mm")))
sketch1.addConstraint(Sketcher.Constraint("DistanceX", 54, 2, -1, 1, Q("15.5 mm")))
sketch1.addConstraint(Sketcher.Constraint("DistanceX", -1, 1, 61, 2, Q("24.5 mm")))
sketch1.addConstraint(Sketcher.Constraint("DistanceX", -1, 1, 65, 2, Q("49.5 mm")))
sketch1.addConstraint(Sketcher.Constraint("DistanceX", -1, 1, 69, 2, Q("104.5 mm")))
sketch1.addConstraint(Sketcher.Constraint("DistanceY", 35, 1, 35, 2, Q("10.366 mm")))
sketch1.addConstraint(Sketcher.Constraint("DistanceX", 8, 2, -1, 1, Q("28.907 mm")))
sketch1.addConstraint(Sketcher.Constraint("DistanceX", -1, 1, 16, 2, Q("21.093 mm")))
sketch1.addConstraint(Sketcher.Constraint("DistanceX", -1, 1, 31, 2, Q("26.093 mm")))
sketch1.addConstraint(Sketcher.Constraint("DistanceY", -1, 1, 74, 3, Q("58.0133 mm")))
sketch1.addConstraint(Sketcher.Constraint("DistanceY", 8, 2, -1, 1, Q("63.6856 mm")))
pad1 = body.newObject("PartDesign::Pad", "Pad")
pad1.Profile = sketch1
pad1.Length = 2

doc.recompute()
